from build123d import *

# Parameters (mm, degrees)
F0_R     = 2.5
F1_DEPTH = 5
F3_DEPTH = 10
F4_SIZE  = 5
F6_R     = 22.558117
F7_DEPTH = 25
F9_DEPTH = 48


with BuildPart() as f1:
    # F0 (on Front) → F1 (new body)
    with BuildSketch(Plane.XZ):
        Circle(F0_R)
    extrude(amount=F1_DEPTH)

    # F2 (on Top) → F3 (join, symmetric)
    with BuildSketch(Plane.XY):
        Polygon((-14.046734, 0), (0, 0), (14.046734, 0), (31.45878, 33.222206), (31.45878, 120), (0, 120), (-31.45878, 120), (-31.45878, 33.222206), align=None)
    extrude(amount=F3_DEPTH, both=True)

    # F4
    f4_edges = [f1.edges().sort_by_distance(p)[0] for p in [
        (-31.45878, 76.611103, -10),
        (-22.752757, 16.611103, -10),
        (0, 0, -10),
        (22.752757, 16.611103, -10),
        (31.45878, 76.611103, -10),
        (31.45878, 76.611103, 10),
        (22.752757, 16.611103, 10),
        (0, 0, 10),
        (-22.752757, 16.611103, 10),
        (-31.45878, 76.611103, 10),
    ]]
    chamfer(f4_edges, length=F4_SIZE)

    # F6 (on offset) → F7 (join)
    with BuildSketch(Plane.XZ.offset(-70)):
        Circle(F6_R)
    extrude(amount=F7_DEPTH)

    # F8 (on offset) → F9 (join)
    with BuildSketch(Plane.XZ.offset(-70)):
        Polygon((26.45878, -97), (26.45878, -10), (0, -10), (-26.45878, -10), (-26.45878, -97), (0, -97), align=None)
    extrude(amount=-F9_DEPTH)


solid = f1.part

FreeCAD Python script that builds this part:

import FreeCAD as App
import Part
import Sketcher
Q = App.Units.Quantity


def edges_at(feature, points):
    """Names of the edges that pass closest to the given points."""
    edges = feature.Shape.Edges
    near = lambda p: min(range(len(edges)), key=lambda i: edges[i].distToShape(Part.Vertex(*p))[0])
    return sorted({f"Edge{near(p) + 1}" for p in points})


def add_polygon(sketch, points):
    """Adds a closed chain of lines whose ends are joined by coincident constraints."""
    first, n = sketch.GeometryCount, len(points)
    for a, b in zip(points, points[1:] + points[:1]):
        sketch.addGeometry(Part.LineSegment(App.Vector(*a, 0), App.Vector(*b, 0)), False)
    for i in range(n):
        sketch.addConstraint(Sketcher.Constraint("Coincident", first + i, 2, first + (i + 1) % n, 1))

doc = App.newDocument("Part")
body = doc.addObject("PartDesign::Body", "Body")

# Sketch on XZ plane
sketch1 = doc.addObject("Sketcher::SketchObject", "Sketch")
body.addObject(sketch1)
sketch1.AttachmentSupport = (doc.XZ_Plane, [""])
sketch1.MapMode = "FlatFace"
sketch1.addGeometry(Part.Circle(App.Vector(0, 0, 0), App.Vector(0, 0, 1), 2.5), False)
sketch1.addConstraint([
    Sketcher.Constraint("Coincident", 0, 3, -1, 1),
    Sketcher.Constraint("Diameter", 0, Q("5 mm")),
])
pad1 = doc.addObject("PartDesign::Pad", "Pad")
body.addObject(pad1)
pad1.Profile = sketch1
pad1.Length = 5

# Sketch on XY plane
sketch2 = doc.addObject("Sketcher::SketchObject", "Sketch001")
body.addObject(sketch2)
sketch2.AttachmentSupport = (doc.XY_Plane, [""])
sketch2.MapMode = "FlatFace"
add_polygon(sketch2, [(-14, 0), (14, 0), (31, 33), (31, 120), (-31, 120), (-31, 33)])  # lines 0-5
sketch2.addConstraint([
    Sketcher.Constraint("Horizontal", 0),
    Sketcher.Constraint("Vertical", 2),
    Sketcher.Constraint("Horizontal", 3),
    Sketcher.Constraint("Vertical", 4),
    Sketcher.Constraint("Symmetric", 0, 2, 5, 2, -1, 1),
    Sketcher.Constraint("Symmetric", 1, 2, 4, 2, -2),
    Sketcher.Constraint("DistanceY", -1, 1, 2, 2, Q("120 mm")),
    Sketcher.Constraint("DistanceX", 0, 1, 0, 2, Q("28.093468 mm")),
    Sketcher.Constraint("DistanceX", 3, 2, 3, 1, Q("62.91756 mm")),
    Sketcher.Constraint("Distance", 1, Q("37.50859 mm")),
])
pad2 = doc.addObject("PartDesign::Pad", "Pad001")
body.addObject(pad2)
pad2.Profile = sketch2
pad2.Length = 20
pad2.Midplane = True
doc.recompute()

chamfer = doc.addObject("PartDesign::Chamfer", "Chamfer")
body.addObject(chamfer)
chamfer.Base = (pad2, edges_at(pad2, [
    (-31.459, 76.611, -10),
    (-22.753, 16.611, -10),
    (0, 0, -10),
    (22.753, 16.611, -10),
    (31.459, 76.611, -10),
    (31.459, 76.611, 10),
    (22.753, 16.611, 10),
    (0, 0, 10),
    (-22.753, 16.611, 10),
    (-31.459, 76.611, 10),
]))
chamfer.Size = 5

# Sketch on XZ plane
sketch3 = doc.addObject("Sketcher::SketchObject", "Sketch002")
body.addObject(sketch3)
sketch3.AttachmentSupport = (doc.XZ_Plane, [""])
sketch3.MapMode = "FlatFace"
sketch3.AttachmentOffset = App.Placement(App.Vector(0, 0, -70), App.Rotation())
sketch3.addGeometry(Part.Circle(App.Vector(0, 0, 0), App.Vector(0, 0, 1), 23), False)
sketch3.addConstraint([
    Sketcher.Constraint("Coincident", 0, 3, -1, 1),
    Sketcher.Constraint("Diameter", 0, Q("45.116234 mm")),
])
pad3 = doc.addObject("PartDesign::Pad", "Pad002")
body.addObject(pad3)
pad3.Profile = sketch3
pad3.Length = 25

# Sketch on XZ plane
sketch4 = doc.addObject("Sketcher::SketchObject", "Sketch003")
body.addObject(sketch4)
sketch4.AttachmentSupport = (doc.XZ_Plane, [""])
sketch4.MapMode = "FlatFace"
sketch4.AttachmentOffset = App.Placement(App.Vector(0, 0, -70), App.Rotation())
add_polygon(sketch4, [(26, -97), (26, -10), (-26, -10), (-26, -97)])  # lines 0-3
sketch4.addConstraint([
    Sketcher.Constraint("Vertical", 0),
    Sketcher.Constraint("Horizontal", 1),
    Sketcher.Constraint("Vertical", 2),
    Sketcher.Constraint("Horizontal", 3),
    Sketcher.Constraint("DistanceY", 0, 1, 0, 2, Q("87 mm")),
    Sketcher.Constraint("DistanceY", 0, 2, -1, 1, Q("10 mm")),
    Sketcher.Constraint("DistanceX", 1, 2, 1, 1, Q("52.91756 mm")),
    Sketcher.Constraint("DistanceX", -1, 1, 0, 2, Q("26.45878 mm")),
])
pad4 = doc.addObject("PartDesign::Pad", "Pad003")
body.addObject(pad4)
pad4.Profile = sketch4
pad4.Length = 48
pad4.Reversed = True

doc.recompute()
